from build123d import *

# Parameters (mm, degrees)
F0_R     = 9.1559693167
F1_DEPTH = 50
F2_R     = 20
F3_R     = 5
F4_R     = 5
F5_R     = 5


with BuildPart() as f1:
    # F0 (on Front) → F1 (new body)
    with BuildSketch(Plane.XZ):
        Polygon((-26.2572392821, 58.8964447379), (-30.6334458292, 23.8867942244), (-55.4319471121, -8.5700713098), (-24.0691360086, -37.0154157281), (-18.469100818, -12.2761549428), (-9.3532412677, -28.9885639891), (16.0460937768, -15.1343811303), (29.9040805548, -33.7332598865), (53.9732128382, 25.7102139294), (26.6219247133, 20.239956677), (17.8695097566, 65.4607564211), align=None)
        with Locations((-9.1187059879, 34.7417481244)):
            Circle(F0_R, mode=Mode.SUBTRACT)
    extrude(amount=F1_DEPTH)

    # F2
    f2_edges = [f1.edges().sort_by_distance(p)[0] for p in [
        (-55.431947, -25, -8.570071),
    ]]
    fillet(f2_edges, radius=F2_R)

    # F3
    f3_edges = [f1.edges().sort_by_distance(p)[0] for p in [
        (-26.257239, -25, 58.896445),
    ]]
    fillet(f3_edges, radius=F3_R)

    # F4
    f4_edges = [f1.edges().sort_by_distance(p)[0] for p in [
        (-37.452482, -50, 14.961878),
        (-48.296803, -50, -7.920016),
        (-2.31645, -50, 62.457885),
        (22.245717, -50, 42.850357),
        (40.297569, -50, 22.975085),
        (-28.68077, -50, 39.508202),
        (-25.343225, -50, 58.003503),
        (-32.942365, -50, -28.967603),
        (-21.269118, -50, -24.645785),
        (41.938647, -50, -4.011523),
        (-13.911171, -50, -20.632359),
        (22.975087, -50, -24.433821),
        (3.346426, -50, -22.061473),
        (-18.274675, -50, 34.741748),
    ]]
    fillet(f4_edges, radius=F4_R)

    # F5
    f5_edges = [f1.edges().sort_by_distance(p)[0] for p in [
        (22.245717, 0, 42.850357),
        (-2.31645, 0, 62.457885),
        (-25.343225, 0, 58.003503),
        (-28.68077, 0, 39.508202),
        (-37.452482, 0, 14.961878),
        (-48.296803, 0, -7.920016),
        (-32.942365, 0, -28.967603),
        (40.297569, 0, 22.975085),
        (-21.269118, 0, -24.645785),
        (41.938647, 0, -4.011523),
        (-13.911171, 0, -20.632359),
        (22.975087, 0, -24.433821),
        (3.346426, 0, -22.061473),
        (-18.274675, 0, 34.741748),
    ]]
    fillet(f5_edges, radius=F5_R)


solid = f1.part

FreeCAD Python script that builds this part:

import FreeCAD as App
import Part
import Sketcher

V = App.Vector
Q = App.Units.Quantity


def edges_at(feature, points):
    """Names of the edges that pass closest to the given points."""
    edges = feature.Shape.Edges
    near = lambda p: min(range(len(edges)), key=lambda i: edges[i].distToShape(Part.Vertex(*p))[0])
    return sorted({f"Edge{near(p) + 1}" for p in points})

doc = App.newDocument("Part")
body = doc.addObject("PartDesign::Body", "Body")

# Sketch on XZ plane
sketch1 = body.newObject("Sketcher::SketchObject", "Sketch")
sketch1.AttachmentSupport = (doc.getObject("XZ_Plane"), [""])
sketch1.MapMode = "FlatFace"
sketch1.addGeometry(Part.LineSegment(V(-26, 59, 0), V(-31, 24, 0)), False)
sketch1.addGeometry(Part.LineSegment(V(-31, 24, 0), V(-55, -9, 0)), False)
sketch1.addGeometry(Part.LineSegment(V(-55, -9, 0), V(-24, -37, 0)), False)
sketch1.addGeometry(Part.LineSegment(V(-24, -37, 0), V(-18, -12, 0)), False)
sketch1.addGeometry(Part.LineSegment(V(-18, -12, 0), V(-9, -29, 0)), False)
sketch1.addGeometry(Part.LineSegment(V(-9, -29, 0), V(16, -15, 0)), False)
sketch1.addGeometry(Part.LineSegment(V(16, -15, 0), V(30, -34, 0)), False)
sketch1.addGeometry(Part.LineSegment(V(30, -34, 0), V(54, 26, 0)), False)
sketch1.addGeometry(Part.LineSegment(V(54, 26, 0), V(27, 20, 0)), False)
sketch1.addGeometry(Part.LineSegment(V(27, 20, 0), V(18, 65, 0)), False)
sketch1.addGeometry(Part.LineSegment(V(18, 65, 0), V(-26, 59, 0)), False)
sketch1.addGeometry(Part.Circle(V(-9, 35, 0), V(0, 0, 1), 9), False)
sketch1.addConstraint(Sketcher.Constraint("Coincident", 0, 2, 1, 1))
sketch1.addConstraint(Sketcher.Constraint("Coincident", 1, 2, 2, 1))
sketch1.addConstraint(Sketcher.Constraint("Coincident", 2, 2, 3, 1))
sketch1.addConstraint(Sketcher.Constraint("Coincident", 3, 2, 4, 1))
sketch1.addConstraint(Sketcher.Constraint("Coincident", 4, 2, 5, 1))
sketch1.addConstraint(Sketcher.Constraint("Coincident", 5, 2, 6, 1))
sketch1.addConstraint(Sketcher.Constraint("Coincident", 6, 2, 7, 1))
sketch1.addConstraint(Sketcher.Constraint("Coincident", 7, 2, 8, 1))
sketch1.addConstraint(Sketcher.Constraint("Coincident", 8, 2, 9, 1))
sketch1.addConstraint(Sketcher.Constraint("Coincident", 9, 2, 10, 1))
sketch1.addConstraint(Sketcher.Constraint("Coincident", 10, 2, 0, 1))
sketch1.addConstraint(Sketcher.Constraint("Perpendicular", 4, 5))
sketch1.addConstraint(Sketcher.Constraint("Diameter", 11, Q("18.311939 mm")))
sketch1.addConstraint(Sketcher.Constraint("Distance", 4, Q("19.036899 mm")))
sketch1.addConstraint(Sketcher.Constraint("DistanceX", 3, 2, -1, 1, Q("18.469101 mm")))
sketch1.addConstraint(Sketcher.Constraint("DistanceX", 1, 2, 0, 2, Q("24.798501 mm")))
sketch1.addConstraint(Sketcher.Constraint("DistanceX", 11, 3, 5, 2, Q("25.1648 mm")))
sketch1.addConstraint(Sketcher.Constraint("DistanceY", 8, 2, 9, 2, Q("45.2208 mm")))
sketch1.addConstraint(Sketcher.Constraint("DistanceY", 3, 2, 10, 2, Q("71.1726 mm")))
sketch1.addConstraint(Sketcher.Constraint("Distance", 1, Q("40.846221 mm")))
sketch1.addConstraint(Sketcher.Constraint("Distance", 2, Q("42.341038 mm")))
sketch1.addConstraint(Sketcher.Constraint("Distance", 3, Q("25.365162 mm")))
sketch1.addConstraint(Sketcher.Constraint("Distance", 5, Q("28.932069 mm")))
sketch1.addConstraint(Sketcher.Constraint("Distance", 6, Q("23.19401 mm")))
sketch1.addConstraint(Sketcher.Constraint("Distance", 8, Q("27.89295 mm")))
sketch1.addConstraint(Sketcher.Constraint("Distance", 9, Q("46.060021 mm")))
sketch1.addConstraint(Sketcher.Constraint("DistanceY", -1, 1, 11, 3, Q("34.741748 mm")))
sketch1.addConstraint(Sketcher.Constraint("DistanceY", 1, 2, -1, 1, Q("8.570071 mm")))
sketch1.addConstraint(Sketcher.Constraint("DistanceX", 4, 2, -1, 1, Q("9.353241 mm")))
sketch1.addConstraint(Sketcher.Constraint("DistanceY", 5, 2, -1, 1, Q("15.134381 mm")))
sketch1.addConstraint(Sketcher.Constraint("DistanceX", -1, 1, 6, 2, Q("29.904081 mm")))
sketch1.addConstraint(Sketcher.Constraint("DistanceX", -1, 1, 9, 2, Q("17.86951 mm")))
sketch1.addConstraint(Sketcher.Constraint("DistanceX", 10, 2, -1, 1, Q("26.257239 mm")))
sketch1.addConstraint(Sketcher.Constraint("DistanceX", 0, 2, 11, 3, Q("21.51474 mm")))
sketch1.addConstraint(Sketcher.Constraint("DistanceX", 5, 2, 7, 2, Q("37.927119 mm")))
sketch1.addConstraint(Sketcher.Constraint("DistanceY", 3, 2, 7, 2, Q("37.986369 mm")))
pad1 = body.newObject("PartDesign::Pad", "Pad")
pad1.Profile = sketch1
pad1.Length = 50
doc.recompute()

fillet = body.newObject("PartDesign::Fillet", "Fillet")
fillet.Base = (pad1, edges_at(pad1, [(-55.432, -25, -8.57)]))
fillet.Radius = 20
doc.recompute()

fillet2 = body.newObject("PartDesign::Fillet", "Fillet001")
fillet2.Base = (fillet, edges_at(fillet, [(-26.257, -25, 58.896)]))
fillet2.Radius = 5
doc.recompute()

fillet3 = body.newObject("PartDesign::Fillet", "Fillet002")
fillet3.Base = (fillet2, edges_at(fillet2, [
    (-37.452, -50, 14.962),
    (-48.297, -50, -7.92),
    (-2.316, -50, 62.458),
    (22.246, -50, 42.85),
    (40.298, -50, 22.975),
    (-28.681, -50, 39.508),
    (-25.343, -50, 58.004),
    (-32.942, -50, -28.968),
    (-21.269, -50, -24.646),
    (41.939, -50, -4.012),
    (-13.911, -50, -20.632),
    (22.975, -50, -24.434),
    (3.346, -50, -22.061),
    (-18.275, -50, 34.742),
]))
fillet3.Radius = 5
doc.recompute()

fillet4 = body.newObject("PartDesign::Fillet", "Fillet003")
fillet4.Base = (fillet3, edges_at(fillet3, [
    (22.246, 0, 42.85),
    (-2.316, 0, 62.458),
    (-25.343, 0, 58.004),
    (-28.681, 0, 39.508),
    (-37.452, 0, 14.962),
    (-48.297, 0, -7.92),
    (-32.942, 0, -28.968),
    (40.298, 0, 22.975),
    (-21.269, 0, -24.646),
    (41.939, 0, -4.012),
    (-13.911, 0, -20.632),
    (22.975, 0, -24.434),
    (3.346, 0, -22.061),
    (-18.275, 0, 34.742),
]))
fillet4.Radius = 5

doc.recompute()
